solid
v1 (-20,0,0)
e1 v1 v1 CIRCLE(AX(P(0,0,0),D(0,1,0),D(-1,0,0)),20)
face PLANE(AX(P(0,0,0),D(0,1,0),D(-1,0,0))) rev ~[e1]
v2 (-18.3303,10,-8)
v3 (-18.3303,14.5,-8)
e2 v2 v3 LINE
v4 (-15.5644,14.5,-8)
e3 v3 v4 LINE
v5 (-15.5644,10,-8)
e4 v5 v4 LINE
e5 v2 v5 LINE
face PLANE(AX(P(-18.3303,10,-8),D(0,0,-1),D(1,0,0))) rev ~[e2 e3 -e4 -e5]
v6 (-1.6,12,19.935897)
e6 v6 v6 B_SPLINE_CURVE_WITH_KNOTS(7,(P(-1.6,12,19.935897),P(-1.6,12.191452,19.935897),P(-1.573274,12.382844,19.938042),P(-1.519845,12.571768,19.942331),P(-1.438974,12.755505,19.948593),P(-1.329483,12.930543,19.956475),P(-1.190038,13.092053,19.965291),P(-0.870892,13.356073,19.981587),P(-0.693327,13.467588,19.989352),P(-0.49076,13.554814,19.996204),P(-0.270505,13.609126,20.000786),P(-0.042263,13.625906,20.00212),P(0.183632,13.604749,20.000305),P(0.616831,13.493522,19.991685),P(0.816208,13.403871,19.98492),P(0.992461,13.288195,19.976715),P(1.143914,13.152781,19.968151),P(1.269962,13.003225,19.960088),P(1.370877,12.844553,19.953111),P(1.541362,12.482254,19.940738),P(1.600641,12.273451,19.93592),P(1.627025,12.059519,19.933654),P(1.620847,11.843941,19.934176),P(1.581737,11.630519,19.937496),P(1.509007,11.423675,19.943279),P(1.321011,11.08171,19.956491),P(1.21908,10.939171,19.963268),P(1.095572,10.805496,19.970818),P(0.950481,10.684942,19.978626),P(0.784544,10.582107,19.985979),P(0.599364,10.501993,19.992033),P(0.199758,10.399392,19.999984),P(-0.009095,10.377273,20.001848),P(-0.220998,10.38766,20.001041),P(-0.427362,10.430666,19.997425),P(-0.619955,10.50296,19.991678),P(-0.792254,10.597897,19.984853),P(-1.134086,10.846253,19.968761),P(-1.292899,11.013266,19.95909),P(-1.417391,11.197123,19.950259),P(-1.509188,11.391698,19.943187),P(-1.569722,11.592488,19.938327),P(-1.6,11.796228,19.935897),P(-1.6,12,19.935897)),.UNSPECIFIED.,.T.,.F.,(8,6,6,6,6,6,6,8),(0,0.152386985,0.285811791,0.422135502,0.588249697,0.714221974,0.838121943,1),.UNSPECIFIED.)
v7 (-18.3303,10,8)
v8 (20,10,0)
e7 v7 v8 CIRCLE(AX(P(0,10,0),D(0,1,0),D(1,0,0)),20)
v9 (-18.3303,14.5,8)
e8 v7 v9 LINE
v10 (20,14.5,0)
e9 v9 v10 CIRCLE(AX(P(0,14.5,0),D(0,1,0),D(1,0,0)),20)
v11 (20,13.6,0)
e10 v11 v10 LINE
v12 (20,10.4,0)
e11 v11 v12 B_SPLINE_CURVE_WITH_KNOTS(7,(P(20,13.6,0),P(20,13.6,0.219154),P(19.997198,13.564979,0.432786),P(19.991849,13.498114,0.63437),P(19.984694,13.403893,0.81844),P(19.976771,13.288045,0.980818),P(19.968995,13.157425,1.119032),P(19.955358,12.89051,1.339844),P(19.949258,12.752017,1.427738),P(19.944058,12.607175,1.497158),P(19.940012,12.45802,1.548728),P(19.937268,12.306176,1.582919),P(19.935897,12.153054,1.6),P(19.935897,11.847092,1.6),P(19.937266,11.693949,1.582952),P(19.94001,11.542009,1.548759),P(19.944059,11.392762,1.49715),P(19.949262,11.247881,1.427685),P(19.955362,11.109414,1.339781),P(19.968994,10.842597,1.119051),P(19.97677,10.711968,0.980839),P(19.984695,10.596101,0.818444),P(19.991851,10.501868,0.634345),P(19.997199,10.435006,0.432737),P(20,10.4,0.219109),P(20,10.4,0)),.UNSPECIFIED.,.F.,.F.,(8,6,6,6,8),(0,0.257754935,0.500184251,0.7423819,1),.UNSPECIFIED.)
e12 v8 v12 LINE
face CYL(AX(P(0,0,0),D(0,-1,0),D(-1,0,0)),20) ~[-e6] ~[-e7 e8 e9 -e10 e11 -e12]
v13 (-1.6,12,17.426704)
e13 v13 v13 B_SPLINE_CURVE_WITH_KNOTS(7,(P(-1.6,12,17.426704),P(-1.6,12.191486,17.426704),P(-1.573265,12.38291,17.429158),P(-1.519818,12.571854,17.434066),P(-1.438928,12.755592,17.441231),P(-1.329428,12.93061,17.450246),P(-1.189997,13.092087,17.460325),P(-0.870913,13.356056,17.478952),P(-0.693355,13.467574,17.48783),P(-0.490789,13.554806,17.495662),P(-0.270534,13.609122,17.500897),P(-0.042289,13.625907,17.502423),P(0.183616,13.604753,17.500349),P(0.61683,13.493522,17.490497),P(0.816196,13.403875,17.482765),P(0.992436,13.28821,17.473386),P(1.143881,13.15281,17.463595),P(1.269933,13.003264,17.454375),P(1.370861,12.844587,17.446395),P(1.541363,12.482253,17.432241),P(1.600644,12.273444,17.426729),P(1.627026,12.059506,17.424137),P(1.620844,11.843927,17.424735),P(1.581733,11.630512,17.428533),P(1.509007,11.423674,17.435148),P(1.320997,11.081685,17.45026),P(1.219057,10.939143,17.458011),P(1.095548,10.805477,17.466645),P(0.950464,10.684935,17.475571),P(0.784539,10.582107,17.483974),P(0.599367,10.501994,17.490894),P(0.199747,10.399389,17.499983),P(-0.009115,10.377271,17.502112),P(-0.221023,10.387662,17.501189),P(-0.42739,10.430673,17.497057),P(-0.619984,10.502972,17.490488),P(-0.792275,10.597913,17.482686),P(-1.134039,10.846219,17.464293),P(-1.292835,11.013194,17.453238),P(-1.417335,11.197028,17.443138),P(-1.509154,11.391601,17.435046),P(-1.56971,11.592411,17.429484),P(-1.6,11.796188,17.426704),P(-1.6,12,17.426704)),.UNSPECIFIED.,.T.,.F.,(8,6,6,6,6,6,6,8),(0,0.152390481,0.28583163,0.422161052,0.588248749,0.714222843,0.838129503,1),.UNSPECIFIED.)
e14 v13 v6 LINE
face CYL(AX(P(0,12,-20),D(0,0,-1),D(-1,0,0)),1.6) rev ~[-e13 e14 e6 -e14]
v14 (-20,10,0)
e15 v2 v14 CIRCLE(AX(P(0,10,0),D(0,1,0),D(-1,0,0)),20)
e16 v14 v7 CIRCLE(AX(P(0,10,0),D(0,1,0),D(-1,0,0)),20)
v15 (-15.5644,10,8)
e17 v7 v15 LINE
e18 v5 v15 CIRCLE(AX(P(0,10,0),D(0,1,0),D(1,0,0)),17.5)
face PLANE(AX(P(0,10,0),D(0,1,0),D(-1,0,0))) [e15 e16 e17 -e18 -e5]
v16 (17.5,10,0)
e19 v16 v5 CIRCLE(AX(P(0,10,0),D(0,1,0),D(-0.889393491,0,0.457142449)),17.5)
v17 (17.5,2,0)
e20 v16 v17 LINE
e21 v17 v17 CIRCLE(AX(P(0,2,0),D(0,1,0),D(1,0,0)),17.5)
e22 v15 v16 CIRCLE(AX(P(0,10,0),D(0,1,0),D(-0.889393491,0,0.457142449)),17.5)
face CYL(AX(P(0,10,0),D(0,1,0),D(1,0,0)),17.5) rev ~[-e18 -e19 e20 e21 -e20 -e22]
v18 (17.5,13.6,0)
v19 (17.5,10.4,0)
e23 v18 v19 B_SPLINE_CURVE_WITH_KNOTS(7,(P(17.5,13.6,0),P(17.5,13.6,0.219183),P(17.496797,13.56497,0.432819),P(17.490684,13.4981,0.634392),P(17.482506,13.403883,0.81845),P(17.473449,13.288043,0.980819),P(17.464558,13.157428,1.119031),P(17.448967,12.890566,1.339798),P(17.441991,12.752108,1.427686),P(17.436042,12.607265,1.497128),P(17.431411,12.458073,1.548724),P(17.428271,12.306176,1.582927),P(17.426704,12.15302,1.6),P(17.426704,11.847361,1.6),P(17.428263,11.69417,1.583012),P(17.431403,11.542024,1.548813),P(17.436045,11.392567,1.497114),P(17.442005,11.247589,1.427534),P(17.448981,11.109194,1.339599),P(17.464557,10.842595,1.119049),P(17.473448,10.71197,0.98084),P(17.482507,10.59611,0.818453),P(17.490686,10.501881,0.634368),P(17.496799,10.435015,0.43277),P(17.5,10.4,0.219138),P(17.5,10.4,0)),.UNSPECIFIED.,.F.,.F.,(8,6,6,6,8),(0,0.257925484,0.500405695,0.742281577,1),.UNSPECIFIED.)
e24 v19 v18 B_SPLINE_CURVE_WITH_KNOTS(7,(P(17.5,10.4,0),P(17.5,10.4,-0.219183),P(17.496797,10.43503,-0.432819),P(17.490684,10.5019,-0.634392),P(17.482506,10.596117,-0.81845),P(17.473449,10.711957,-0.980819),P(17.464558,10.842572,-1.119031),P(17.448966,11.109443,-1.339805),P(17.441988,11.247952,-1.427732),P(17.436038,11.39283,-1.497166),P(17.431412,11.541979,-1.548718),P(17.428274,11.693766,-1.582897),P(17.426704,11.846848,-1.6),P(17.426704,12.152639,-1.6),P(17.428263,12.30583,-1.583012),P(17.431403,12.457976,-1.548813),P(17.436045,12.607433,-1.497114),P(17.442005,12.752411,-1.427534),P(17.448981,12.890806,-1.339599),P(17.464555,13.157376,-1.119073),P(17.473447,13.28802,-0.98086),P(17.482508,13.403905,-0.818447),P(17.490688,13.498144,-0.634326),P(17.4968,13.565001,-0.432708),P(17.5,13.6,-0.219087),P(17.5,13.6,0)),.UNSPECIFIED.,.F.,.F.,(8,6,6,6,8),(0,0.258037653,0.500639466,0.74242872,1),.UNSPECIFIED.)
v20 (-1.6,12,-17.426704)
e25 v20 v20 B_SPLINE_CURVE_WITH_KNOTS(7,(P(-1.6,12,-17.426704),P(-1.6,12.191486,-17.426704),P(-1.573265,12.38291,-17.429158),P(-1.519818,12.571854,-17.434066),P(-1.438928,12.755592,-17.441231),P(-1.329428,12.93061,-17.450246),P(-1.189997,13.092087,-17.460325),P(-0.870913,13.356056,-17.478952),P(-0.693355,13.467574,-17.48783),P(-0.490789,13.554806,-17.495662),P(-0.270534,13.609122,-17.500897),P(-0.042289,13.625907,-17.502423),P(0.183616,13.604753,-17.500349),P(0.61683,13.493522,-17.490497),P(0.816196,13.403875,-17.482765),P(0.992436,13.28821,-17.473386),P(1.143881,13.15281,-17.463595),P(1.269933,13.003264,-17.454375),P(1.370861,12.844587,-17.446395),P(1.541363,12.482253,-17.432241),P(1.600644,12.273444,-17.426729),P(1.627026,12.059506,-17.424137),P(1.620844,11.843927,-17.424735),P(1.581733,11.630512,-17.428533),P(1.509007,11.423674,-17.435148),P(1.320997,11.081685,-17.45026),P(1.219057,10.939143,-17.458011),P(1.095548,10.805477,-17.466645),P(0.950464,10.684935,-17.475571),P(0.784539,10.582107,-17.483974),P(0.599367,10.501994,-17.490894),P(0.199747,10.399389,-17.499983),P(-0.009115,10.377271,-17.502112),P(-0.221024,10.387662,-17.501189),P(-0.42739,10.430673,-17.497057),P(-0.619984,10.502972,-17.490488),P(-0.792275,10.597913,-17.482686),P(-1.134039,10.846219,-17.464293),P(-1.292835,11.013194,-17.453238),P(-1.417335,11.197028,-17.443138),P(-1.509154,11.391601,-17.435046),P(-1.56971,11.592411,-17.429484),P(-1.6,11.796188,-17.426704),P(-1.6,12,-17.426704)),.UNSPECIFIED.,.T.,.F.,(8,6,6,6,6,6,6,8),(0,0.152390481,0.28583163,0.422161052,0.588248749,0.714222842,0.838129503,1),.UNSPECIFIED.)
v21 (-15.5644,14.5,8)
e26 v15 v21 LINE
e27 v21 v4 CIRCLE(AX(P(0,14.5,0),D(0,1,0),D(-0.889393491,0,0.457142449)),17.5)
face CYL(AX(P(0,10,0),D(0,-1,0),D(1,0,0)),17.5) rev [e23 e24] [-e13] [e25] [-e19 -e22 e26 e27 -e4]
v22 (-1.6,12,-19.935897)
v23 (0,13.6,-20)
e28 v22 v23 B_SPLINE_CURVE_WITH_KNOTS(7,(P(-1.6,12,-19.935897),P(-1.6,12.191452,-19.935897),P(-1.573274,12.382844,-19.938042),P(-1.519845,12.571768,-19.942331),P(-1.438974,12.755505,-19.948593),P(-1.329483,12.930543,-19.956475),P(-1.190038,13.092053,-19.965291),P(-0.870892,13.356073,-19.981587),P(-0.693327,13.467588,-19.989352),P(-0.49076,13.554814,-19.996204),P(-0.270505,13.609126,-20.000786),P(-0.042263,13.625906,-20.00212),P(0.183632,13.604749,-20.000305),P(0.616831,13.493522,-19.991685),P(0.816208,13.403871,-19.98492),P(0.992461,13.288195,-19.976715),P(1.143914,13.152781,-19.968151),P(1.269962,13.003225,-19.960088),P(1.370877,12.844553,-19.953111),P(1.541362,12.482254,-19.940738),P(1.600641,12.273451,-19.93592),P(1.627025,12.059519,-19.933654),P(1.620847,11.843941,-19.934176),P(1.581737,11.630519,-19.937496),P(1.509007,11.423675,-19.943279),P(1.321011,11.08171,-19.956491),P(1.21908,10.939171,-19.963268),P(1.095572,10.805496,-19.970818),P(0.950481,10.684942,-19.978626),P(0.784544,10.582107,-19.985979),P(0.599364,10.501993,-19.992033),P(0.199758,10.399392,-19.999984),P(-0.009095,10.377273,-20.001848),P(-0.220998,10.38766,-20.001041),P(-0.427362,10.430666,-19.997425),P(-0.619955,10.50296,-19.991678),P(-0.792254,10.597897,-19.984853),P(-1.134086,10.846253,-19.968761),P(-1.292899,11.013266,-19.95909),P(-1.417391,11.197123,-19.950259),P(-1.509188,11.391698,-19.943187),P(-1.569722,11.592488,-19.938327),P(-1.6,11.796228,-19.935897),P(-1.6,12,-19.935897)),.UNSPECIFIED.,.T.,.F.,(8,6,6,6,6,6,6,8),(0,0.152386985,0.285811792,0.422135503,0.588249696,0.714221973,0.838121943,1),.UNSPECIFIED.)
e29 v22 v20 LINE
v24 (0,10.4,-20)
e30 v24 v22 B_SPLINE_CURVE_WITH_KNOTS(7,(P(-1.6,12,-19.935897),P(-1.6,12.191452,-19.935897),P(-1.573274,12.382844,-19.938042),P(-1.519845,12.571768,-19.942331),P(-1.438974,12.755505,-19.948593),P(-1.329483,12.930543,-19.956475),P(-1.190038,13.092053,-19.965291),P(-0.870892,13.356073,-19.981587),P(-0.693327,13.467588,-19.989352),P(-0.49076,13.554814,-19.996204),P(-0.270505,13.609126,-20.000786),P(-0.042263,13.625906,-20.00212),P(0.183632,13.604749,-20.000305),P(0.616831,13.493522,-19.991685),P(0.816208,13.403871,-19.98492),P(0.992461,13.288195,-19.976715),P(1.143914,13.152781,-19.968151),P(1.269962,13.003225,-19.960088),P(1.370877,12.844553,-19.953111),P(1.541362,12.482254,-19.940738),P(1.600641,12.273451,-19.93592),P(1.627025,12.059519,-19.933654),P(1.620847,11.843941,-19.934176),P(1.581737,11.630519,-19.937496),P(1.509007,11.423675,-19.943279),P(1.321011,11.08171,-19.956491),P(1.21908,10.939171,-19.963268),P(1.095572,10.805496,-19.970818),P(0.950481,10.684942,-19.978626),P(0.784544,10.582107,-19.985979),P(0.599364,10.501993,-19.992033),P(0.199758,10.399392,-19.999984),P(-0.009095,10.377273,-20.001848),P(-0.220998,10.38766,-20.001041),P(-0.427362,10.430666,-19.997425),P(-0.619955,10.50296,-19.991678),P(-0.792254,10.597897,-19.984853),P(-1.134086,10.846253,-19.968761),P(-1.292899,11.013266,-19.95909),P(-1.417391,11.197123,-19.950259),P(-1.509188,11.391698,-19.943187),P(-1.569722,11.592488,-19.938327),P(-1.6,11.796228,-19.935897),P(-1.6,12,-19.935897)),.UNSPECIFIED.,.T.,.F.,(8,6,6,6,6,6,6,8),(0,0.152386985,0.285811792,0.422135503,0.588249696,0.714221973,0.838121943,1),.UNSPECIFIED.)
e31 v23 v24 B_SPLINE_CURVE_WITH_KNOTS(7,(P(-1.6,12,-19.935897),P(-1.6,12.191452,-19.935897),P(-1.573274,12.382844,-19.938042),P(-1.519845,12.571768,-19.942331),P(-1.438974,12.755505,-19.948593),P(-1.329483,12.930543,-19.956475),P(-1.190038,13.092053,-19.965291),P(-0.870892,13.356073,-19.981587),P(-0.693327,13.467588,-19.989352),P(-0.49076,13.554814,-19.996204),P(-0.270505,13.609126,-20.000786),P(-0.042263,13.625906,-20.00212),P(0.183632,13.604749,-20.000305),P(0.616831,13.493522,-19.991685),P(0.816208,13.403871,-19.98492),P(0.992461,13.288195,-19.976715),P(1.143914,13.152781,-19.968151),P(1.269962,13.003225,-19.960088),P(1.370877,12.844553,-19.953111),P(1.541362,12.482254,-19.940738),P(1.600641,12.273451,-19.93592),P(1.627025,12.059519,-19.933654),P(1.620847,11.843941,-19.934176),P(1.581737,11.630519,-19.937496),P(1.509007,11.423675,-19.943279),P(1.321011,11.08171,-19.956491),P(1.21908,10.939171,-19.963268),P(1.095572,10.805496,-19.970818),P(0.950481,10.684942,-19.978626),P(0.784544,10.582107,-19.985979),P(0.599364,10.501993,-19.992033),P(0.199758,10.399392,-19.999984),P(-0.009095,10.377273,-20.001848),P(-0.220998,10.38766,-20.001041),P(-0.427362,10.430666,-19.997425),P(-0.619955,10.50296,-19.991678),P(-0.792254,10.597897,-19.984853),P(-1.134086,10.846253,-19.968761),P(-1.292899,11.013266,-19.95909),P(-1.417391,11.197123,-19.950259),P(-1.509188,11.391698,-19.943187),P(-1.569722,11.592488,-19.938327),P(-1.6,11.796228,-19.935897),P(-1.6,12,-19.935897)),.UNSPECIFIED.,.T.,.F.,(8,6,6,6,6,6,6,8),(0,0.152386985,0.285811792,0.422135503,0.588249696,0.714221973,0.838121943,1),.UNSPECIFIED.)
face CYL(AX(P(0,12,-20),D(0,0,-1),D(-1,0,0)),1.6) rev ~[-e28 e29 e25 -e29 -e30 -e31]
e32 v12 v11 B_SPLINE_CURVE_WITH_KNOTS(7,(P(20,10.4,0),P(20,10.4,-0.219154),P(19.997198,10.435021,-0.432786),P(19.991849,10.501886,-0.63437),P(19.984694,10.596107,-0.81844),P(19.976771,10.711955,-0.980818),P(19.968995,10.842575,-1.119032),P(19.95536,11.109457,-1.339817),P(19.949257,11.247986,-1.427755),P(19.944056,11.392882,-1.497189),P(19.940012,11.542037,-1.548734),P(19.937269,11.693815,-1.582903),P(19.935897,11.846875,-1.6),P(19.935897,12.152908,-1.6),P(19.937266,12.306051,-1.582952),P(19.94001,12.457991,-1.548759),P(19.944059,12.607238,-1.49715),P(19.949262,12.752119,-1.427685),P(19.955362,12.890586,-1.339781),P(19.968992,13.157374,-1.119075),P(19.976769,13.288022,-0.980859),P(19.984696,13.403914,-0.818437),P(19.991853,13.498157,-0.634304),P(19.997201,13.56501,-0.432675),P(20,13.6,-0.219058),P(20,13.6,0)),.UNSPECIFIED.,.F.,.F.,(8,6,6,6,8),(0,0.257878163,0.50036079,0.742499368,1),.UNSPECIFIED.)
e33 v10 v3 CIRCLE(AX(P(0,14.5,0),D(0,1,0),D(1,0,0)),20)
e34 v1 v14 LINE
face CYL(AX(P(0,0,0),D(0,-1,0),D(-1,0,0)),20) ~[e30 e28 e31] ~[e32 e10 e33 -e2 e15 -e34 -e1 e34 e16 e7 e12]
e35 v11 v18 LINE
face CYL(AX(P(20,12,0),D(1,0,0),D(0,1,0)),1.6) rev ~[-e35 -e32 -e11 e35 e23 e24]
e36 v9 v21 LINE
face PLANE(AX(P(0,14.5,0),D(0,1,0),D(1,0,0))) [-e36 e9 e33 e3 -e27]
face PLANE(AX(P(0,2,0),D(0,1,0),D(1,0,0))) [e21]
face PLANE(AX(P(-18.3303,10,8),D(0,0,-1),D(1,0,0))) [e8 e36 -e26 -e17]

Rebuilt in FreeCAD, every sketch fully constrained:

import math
import FreeCAD as App
import Part
import Sketcher

doc = App.newDocument("Part")
body = doc.addObject("PartDesign::Body", "Body")

# Sketch on XZ plane
sketch1 = body.newObject("Sketcher::SketchObject", "Sketch")
sketch1.AttachmentSupport = (doc.getObject("XZ_Plane"), [""])
sketch1.MapMode = "FlatFace"
sketch1.addGeometry(Part.Circle(App.Vector(0, 0, 0), App.Vector(0, 0, 1), 20), False)
sketch1.addConstraint([
    Sketcher.Constraint("Coincident", 0, 3, -1, 1),
    Sketcher.Constraint("Diameter", 0, 40.0),
])
pad1 = body.newObject("PartDesign::Pad", "Pad")
pad1.Profile = sketch1
pad1.Length = 10
pad1.Reversed = True

# Sketch on XZ plane
sketch2 = body.newObject("Sketcher::SketchObject", "Sketch001")
sketch2.AttachmentSupport = (doc.getObject("XZ_Plane"), [""])
sketch2.MapMode = "FlatFace"
sketch2.AttachmentOffset = App.Placement(App.Vector(0, 0, -10), App.Rotation())
sketch2.addGeometry([
    Part.ArcOfCircle(Part.Circle(App.Vector(0, 0, 0), App.Vector(0, 0, 1), 17.5), math.radians(-153), math.radians(153)),
    Part.LineSegment(App.Vector(-15.6, 8, 0), App.Vector(-18.3, 8, 0)),
    Part.ArcOfCircle(Part.Circle(App.Vector(0, 0, 0), App.Vector(0, 0, 1), 20), math.radians(-156), math.radians(156)),
    Part.LineSegment(App.Vector(-18.3, -8, 0), App.Vector(-15.6, -8, 0)),
], False)
sketch2.addConstraint([
    Sketcher.Constraint("Coincident", 0, 2, 1, 1),
    Sketcher.Constraint("Coincident", 1, 2, 2, 2),
    Sketcher.Constraint("Coincident", 2, 1, 3, 1),
    Sketcher.Constraint("Coincident", 3, 2, 0, 1),
    Sketcher.Constraint("Horizontal", 1),
    Sketcher.Constraint("Horizontal", 3),
    Sketcher.Constraint("Coincident", 0, 3, -1, 1),
    Sketcher.Constraint("Coincident", 2, 3, -1, 1),
    Sketcher.Constraint("Vertical", 1, 2, 2, 1),
    Sketcher.Constraint("Radius", 2, 20.0),
    Sketcher.Constraint("Radius", 0, 17.5),
    Sketcher.Constraint("DistanceY", -1, 1, 0, 2, 8.0),
])
pad2 = body.newObject("PartDesign::Pad", "Pad001")
pad2.Profile = sketch2
pad2.Length = 4.5
pad2.Reversed = True

# Sketch on XZ plane
sketch3 = body.newObject("Sketcher::SketchObject", "Sketch002")
sketch3.AttachmentSupport = (doc.getObject("XZ_Plane"), [""])
sketch3.MapMode = "FlatFace"
sketch3.AttachmentOffset = App.Placement(App.Vector(0, 0, -10), App.Rotation())
sketch3.addGeometry(Part.Circle(App.Vector(0, 0, 0), App.Vector(0, 0, 1), 18), False)
sketch3.addConstraint([
    Sketcher.Constraint("Coincident", 0, 3, -1, 1),
    Sketcher.Constraint("Diameter", 0, 35.0),
])
pocket1 = body.newObject("PartDesign::Pocket", "Pocket")
pocket1.Profile = sketch3
pocket1.Length = 8
pocket1.Reversed = True

# Sketch on YZ plane
sketch4 = body.newObject("Sketcher::SketchObject", "Sketch003")
sketch4.AttachmentSupport = (doc.getObject("YZ_Plane"), [""])
sketch4.MapMode = "FlatFace"
sketch4.AttachmentOffset = App.Placement(App.Vector(0, 0, 20), App.Rotation())
sketch4.addGeometry(Part.Circle(App.Vector(12, 0, 0), App.Vector(0, 0, 1), 1.6), False)
sketch4.addConstraint([
    Sketcher.Constraint("PointOnObject", 0, 3, -1),
    Sketcher.Constraint("Diameter", 0, 3.2),
    Sketcher.Constraint("DistanceX", -1, 1, 0, 3, 12.0),
])
pocket2 = body.newObject("PartDesign::Pocket", "Pocket001")
pocket2.Profile = sketch4
pocket2.Type = "UpToFirst"

# Sketch on XY plane
sketch5 = body.newObject("Sketcher::SketchObject", "Sketch004")
sketch5.AttachmentSupport = (doc.getObject("XY_Plane"), [""])
sketch5.MapMode = "FlatFace"
sketch5.AttachmentOffset = App.Placement(App.Vector(0, 0, -20), App.Rotation())
sketch5.addGeometry(Part.Circle(App.Vector(0, 12, 0), App.Vector(0, 0, 1), 1.6), False)
sketch5.addConstraint([
    Sketcher.Constraint("PointOnObject", 0, 3, -2),
    Sketcher.Constraint("Diameter", 0, 3.2),
    Sketcher.Constraint("DistanceY", -1, 1, 0, 3, 12.0),
])
pocket3 = body.newObject("PartDesign::Pocket", "Pocket002")
pocket3.Profile = sketch5
pocket3.Type = "ThroughAll"
pocket3.Reversed = True

doc.recompute()
